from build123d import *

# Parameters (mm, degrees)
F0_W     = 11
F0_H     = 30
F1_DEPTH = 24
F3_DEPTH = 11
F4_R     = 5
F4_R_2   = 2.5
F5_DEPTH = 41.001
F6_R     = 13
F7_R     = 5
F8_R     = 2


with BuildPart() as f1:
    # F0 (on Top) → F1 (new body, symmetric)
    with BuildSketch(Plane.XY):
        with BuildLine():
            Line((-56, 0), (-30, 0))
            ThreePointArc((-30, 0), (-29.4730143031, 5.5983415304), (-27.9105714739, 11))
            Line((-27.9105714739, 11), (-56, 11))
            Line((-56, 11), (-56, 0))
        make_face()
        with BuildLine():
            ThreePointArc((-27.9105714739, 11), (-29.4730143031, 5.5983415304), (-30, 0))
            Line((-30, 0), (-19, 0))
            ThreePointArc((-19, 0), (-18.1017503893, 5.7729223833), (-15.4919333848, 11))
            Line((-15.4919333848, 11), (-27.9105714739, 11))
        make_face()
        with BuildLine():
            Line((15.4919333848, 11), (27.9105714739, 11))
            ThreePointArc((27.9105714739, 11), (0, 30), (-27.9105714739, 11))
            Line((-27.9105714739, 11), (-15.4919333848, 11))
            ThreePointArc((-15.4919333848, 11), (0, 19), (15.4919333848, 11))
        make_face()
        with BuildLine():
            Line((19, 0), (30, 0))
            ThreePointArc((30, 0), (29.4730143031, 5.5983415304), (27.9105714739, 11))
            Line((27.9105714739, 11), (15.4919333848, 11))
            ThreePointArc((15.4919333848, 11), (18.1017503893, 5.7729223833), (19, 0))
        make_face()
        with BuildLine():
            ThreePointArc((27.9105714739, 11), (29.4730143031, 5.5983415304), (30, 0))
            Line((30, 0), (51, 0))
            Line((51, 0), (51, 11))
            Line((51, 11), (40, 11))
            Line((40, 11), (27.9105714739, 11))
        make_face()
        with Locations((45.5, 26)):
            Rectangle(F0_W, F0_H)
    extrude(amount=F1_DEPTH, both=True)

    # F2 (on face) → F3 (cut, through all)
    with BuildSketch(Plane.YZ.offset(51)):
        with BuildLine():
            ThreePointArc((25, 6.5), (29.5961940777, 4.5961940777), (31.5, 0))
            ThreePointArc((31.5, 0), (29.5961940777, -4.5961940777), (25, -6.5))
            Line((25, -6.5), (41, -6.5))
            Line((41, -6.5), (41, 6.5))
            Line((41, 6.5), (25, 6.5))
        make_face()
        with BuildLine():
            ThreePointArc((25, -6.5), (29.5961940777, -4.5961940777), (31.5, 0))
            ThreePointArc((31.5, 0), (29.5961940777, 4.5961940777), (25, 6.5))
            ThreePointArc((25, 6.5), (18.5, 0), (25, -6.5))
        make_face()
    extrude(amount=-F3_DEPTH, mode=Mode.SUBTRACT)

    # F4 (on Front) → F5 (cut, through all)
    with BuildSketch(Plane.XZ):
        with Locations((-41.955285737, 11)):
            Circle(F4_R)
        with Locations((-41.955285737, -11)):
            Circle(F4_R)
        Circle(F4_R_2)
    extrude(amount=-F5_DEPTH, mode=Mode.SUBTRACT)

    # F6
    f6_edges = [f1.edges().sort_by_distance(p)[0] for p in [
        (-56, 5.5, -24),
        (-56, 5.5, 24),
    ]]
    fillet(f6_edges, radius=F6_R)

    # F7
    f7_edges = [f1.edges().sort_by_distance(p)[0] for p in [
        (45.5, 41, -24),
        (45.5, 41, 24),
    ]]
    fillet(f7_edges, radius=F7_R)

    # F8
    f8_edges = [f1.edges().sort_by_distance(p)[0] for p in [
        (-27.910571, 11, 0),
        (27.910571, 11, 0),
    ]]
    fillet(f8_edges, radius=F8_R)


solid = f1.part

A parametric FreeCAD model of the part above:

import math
import FreeCAD as App
import Part
import Sketcher
from FreeCAD import Vector


def edges_at(feature, points):
    """Names of the edges that pass closest to the given points."""
    edges = feature.Shape.Edges
    near = lambda p: min(range(len(edges)), key=lambda i: edges[i].distToShape(Part.Vertex(*p))[0])
    return sorted({f"Edge{near(p) + 1}" for p in points})

doc = App.newDocument("Part")
params = doc.addObject("Spreadsheet::Sheet", "Params")
for row, (alias, value) in enumerate([
    ("sketch1_radius", "19 mm"),
    ("sketch1_radius2", "30 mm"),
    ("sketch1_width", "37 mm"),
    ("sketch1_width2", "32 mm"),
    ("sketch1_width3", "11 mm"),
    ("pad1_length", "48 mm"),
    ("sketch2_radius", "6.5 mm"),
    ("sketch2_width", "16 mm"),
    ("pocket1_length", "11 mm"),
    ("sketch3_diameter", "10 mm"),
    ("sketch3_diameter2", "5 mm"),
    ("fillet_radius", "13 mm"),
    ("fillet2_radius", "5 mm"),
    ("fillet3_radius", "2 mm"),
], start=1):
    params.set(f"A{row}", alias)
    params.set(f"B{row}", "=" + value)
    params.setAlias(f"B{row}", alias)

body = doc.addObject("PartDesign::Body", "Body")

# Sketch on XY plane
sketch1 = doc.addObject("Sketcher::SketchObject", "Sketch")
body.addObject(sketch1)
sketch1.AttachmentSupport = (doc.XY_Plane, [""])
sketch1.MapMode = "FlatFace"
sketch1.addGeometry(Part.LineSegment(Vector(-56, 0, 0), Vector(-19, 0, 0)), False)
sketch1.addGeometry(Part.ArcOfCircle(Part.Circle(Vector(0, 0, 0), Vector(0, 0, 1), 19), math.radians(145), math.radians(180)), False)
sketch1.addGeometry(Part.ArcOfCircle(Part.Circle(Vector(0, 0, 0), Vector(0, 0, 1), 19), math.radians(35), math.radians(145)), False)
sketch1.addGeometry(Part.ArcOfCircle(Part.Circle(Vector(0, 0, 0), Vector(0, 0, 1), 19), math.radians(0), math.radians(35)), False)
sketch1.addGeometry(Part.LineSegment(Vector(19, 0, 0), Vector(51, 0, 0)), False)
sketch1.addGeometry(Part.LineSegment(Vector(51, 0, 0), Vector(51, 41, 0)), False)
sketch1.addGeometry(Part.LineSegment(Vector(51, 41, 0), Vector(40, 41, 0)), False)
sketch1.addGeometry(Part.LineSegment(Vector(40, 41, 0), Vector(40, 11, 0)), False)
sketch1.addGeometry(Part.LineSegment(Vector(40, 11, 0), Vector(28, 11, 0)), False)
sketch1.addGeometry(Part.ArcOfCircle(Part.Circle(Vector(0, 0, 0), Vector(0, 0, 1), 30), math.radians(22), math.radians(158)), False)
sketch1.addGeometry(Part.LineSegment(Vector(-28, 11, 0), Vector(-56, 11, 0)), False)
sketch1.addGeometry(Part.LineSegment(Vector(-56, 11, 0), Vector(-56, 0, 0)), False)
sketch1.addConstraint(Sketcher.Constraint("Coincident", 0, 2, 1, 2))
sketch1.addConstraint(Sketcher.Constraint("Tangent", 1, 1, 2, 2))
sketch1.addConstraint(Sketcher.Constraint("Tangent", 2, 1, 3, 2))
sketch1.addConstraint(Sketcher.Constraint("Coincident", 3, 1, 4, 1))
sketch1.addConstraint(Sketcher.Constraint("Coincident", 4, 2, 5, 1))
sketch1.addConstraint(Sketcher.Constraint("Coincident", 5, 2, 6, 1))
sketch1.addConstraint(Sketcher.Constraint("Coincident", 6, 2, 7, 1))
sketch1.addConstraint(Sketcher.Constraint("Coincident", 7, 2, 8, 1))
sketch1.addConstraint(Sketcher.Constraint("Coincident", 8, 2, 9, 1))
sketch1.addConstraint(Sketcher.Constraint("Coincident", 9, 2, 10, 1))
sketch1.addConstraint(Sketcher.Constraint("Coincident", 10, 2, 11, 1))
sketch1.addConstraint(Sketcher.Constraint("Coincident", 11, 2, 0, 1))
sketch1.addConstraint(Sketcher.Constraint("Horizontal", 0))
sketch1.addConstraint(Sketcher.Constraint("Horizontal", 4))
sketch1.addConstraint(Sketcher.Constraint("Vertical", 5))
sketch1.addConstraint(Sketcher.Constraint("Horizontal", 6))
sketch1.addConstraint(Sketcher.Constraint("Vertical", 7))
sketch1.addConstraint(Sketcher.Constraint("Horizontal", 8))
sketch1.addConstraint(Sketcher.Constraint("Horizontal", 10))
sketch1.addConstraint(Sketcher.Constraint("Vertical", 11))
sketch1.addConstraint(Sketcher.Constraint("Coincident", 1, 3, -1, 1))
sketch1.addConstraint(Sketcher.Constraint("Coincident", 3, 3, -1, 1))
sketch1.addConstraint(Sketcher.Constraint("Coincident", 9, 3, -1, 1))
sketch1.addConstraint(Sketcher.Constraint("PointOnObject", 0, 2, -1))
sketch1.addConstraint(Sketcher.Constraint("PointOnObject", 3, 1, -1))
sketch1.addConstraint(Sketcher.Constraint("Horizontal", 1, 1, 2, 1))
sketch1.addConstraint(Sketcher.Constraint("Horizontal", 2, 1, 7, 2))
sketch1.addConstraint(Sketcher.Constraint("Horizontal", 8, 2, 9, 2))
sketch1.addConstraint(Sketcher.Constraint("Equal", 6, 11))
sketch1.addConstraint(Sketcher.Constraint("Radius", 1, 19.0))
sketch1.addConstraint(Sketcher.Constraint("Radius", 9, 30.0))
sketch1.addConstraint(Sketcher.Constraint("DistanceX", 0, 1, 0, 2, 37.0))
sketch1.addConstraint(Sketcher.Constraint("DistanceX", 4, 1, 4, 2, 32.0))
sketch1.addConstraint(Sketcher.Constraint("DistanceX", 6, 2, 6, 1, 11.0))
sketch1.addConstraint(Sketcher.Constraint("DistanceY", 5, 1, 5, 2, 41.0))
sketch1.setExpression("Constraints[29]", "Params.sketch1_radius")
sketch1.setExpression("Constraints[30]", "Params.sketch1_radius2")
sketch1.setExpression("Constraints[31]", "Params.sketch1_width")
sketch1.setExpression("Constraints[32]", "Params.sketch1_width2")
sketch1.setExpression("Constraints[33]", "Params.sketch1_width3")
pad1 = doc.addObject("PartDesign::Pad", "Pad")
body.addObject(pad1)
pad1.Profile = sketch1
pad1.setExpression("Length", "Params.pad1_length")
pad1.Midplane = True

# Sketch on YZ plane
sketch2 = doc.addObject("Sketcher::SketchObject", "Sketch001")
body.addObject(sketch2)
sketch2.AttachmentSupport = (doc.YZ_Plane, [""])
sketch2.MapMode = "FlatFace"
sketch2.AttachmentOffset = App.Placement(Vector(0, 0, 51), App.Rotation())
sketch2.addGeometry(Part.LineSegment(Vector(25, -6, 0), Vector(41, -6, 0)), False)
sketch2.addGeometry(Part.LineSegment(Vector(41, -6, 0), Vector(41, 6, 0)), False)
sketch2.addGeometry(Part.LineSegment(Vector(41, 6, 0), Vector(25, 6, 0)), False)
sketch2.addGeometry(Part.ArcOfCircle(Part.Circle(Vector(25, 0, 0), Vector(0, 0, 1), 6), math.radians(90), math.radians(270)), False)
sketch2.addConstraint(Sketcher.Constraint("Coincident", 0, 2, 1, 1))
sketch2.addConstraint(Sketcher.Constraint("Coincident", 1, 2, 2, 1))
sketch2.addConstraint(Sketcher.Constraint("Tangent", 2, 2, 3, 1))
sketch2.addConstraint(Sketcher.Constraint("Tangent", 3, 2, 0, 1))
sketch2.addConstraint(Sketcher.Constraint("Horizontal", 0))
sketch2.addConstraint(Sketcher.Constraint("Vertical", 1))
sketch2.addConstraint(Sketcher.Constraint("Horizontal", 2))
sketch2.addConstraint(Sketcher.Constraint("PointOnObject", 3, 3, -1))
sketch2.addConstraint(Sketcher.Constraint("Radius", 3, 6.5))
sketch2.addConstraint(Sketcher.Constraint("DistanceX", 0, 1, 0, 2, 16.0))
sketch2.addConstraint(Sketcher.Constraint("DistanceX", -1, 1, 3, 3, 25.0))
sketch2.setExpression("Constraints[8]", "Params.sketch2_radius")
sketch2.setExpression("Constraints[9]", "Params.sketch2_width")
pocket1 = doc.addObject("PartDesign::Pocket", "Pocket")
body.addObject(pocket1)
pocket1.Profile = sketch2
pocket1.setExpression("Length", "Params.pocket1_length")

# Sketch on XZ plane
sketch3 = doc.addObject("Sketcher::SketchObject", "Sketch002")
body.addObject(sketch3)
sketch3.AttachmentSupport = (doc.XZ_Plane, [""])
sketch3.MapMode = "FlatFace"
sketch3.addGeometry(Part.Circle(Vector(-42, 11, 0), Vector(0, 0, 1), 5), False)
sketch3.addGeometry(Part.Circle(Vector(-42, -11, 0), Vector(0, 0, 1), 5), False)
sketch3.addGeometry(Part.Circle(Vector(0, 0, 0), Vector(0, 0, 1), 2.5), False)
sketch3.addConstraint(Sketcher.Constraint("Coincident", 2, 3, -1, 1))
sketch3.addConstraint(Sketcher.Constraint("Equal", 0, 1))
sketch3.addConstraint(Sketcher.Constraint("Symmetric", 0, 3, 1, 3, -1))
sketch3.addConstraint(Sketcher.Constraint("Diameter", 0, 10.0))
sketch3.addConstraint(Sketcher.Constraint("Diameter", 2, 5.0))
sketch3.addConstraint(Sketcher.Constraint("DistanceY", -1, 1, 0, 3, 11.0))
sketch3.addConstraint(Sketcher.Constraint("DistanceX", 0, 3, -1, 1, 41.955286))
sketch3.setExpression("Constraints[3]", "Params.sketch3_diameter")
sketch3.setExpression("Constraints[4]", "Params.sketch3_diameter2")
pocket2 = doc.addObject("PartDesign::Pocket", "Pocket001")
body.addObject(pocket2)
pocket2.Profile = sketch3
pocket2.Type = "ThroughAll"
doc.recompute()

fillet = doc.addObject("PartDesign::Fillet", "Fillet")
body.addObject(fillet)
fillet.Base = (pocket2, edges_at(pocket2, [(-56, 5.5, -24), (-56, 5.5, 24)]))
fillet.setExpression("Radius", "Params.fillet_radius")
doc.recompute()

fillet2 = doc.addObject("PartDesign::Fillet", "Fillet001")
body.addObject(fillet2)
fillet2.Base = (fillet, edges_at(fillet, [(45.5, 41, -24), (45.5, 41, 24)]))
fillet2.setExpression("Radius", "Params.fillet2_radius")
doc.recompute()

fillet3 = doc.addObject("PartDesign::Fillet", "Fillet002")
body.addObject(fillet3)
fillet3.Base = (fillet2, edges_at(fillet2, [(-27.911, 11, 0), (27.911, 11, 0)]))
fillet3.setExpression("Radius", "Params.fillet3_radius")

doc.recompute()
